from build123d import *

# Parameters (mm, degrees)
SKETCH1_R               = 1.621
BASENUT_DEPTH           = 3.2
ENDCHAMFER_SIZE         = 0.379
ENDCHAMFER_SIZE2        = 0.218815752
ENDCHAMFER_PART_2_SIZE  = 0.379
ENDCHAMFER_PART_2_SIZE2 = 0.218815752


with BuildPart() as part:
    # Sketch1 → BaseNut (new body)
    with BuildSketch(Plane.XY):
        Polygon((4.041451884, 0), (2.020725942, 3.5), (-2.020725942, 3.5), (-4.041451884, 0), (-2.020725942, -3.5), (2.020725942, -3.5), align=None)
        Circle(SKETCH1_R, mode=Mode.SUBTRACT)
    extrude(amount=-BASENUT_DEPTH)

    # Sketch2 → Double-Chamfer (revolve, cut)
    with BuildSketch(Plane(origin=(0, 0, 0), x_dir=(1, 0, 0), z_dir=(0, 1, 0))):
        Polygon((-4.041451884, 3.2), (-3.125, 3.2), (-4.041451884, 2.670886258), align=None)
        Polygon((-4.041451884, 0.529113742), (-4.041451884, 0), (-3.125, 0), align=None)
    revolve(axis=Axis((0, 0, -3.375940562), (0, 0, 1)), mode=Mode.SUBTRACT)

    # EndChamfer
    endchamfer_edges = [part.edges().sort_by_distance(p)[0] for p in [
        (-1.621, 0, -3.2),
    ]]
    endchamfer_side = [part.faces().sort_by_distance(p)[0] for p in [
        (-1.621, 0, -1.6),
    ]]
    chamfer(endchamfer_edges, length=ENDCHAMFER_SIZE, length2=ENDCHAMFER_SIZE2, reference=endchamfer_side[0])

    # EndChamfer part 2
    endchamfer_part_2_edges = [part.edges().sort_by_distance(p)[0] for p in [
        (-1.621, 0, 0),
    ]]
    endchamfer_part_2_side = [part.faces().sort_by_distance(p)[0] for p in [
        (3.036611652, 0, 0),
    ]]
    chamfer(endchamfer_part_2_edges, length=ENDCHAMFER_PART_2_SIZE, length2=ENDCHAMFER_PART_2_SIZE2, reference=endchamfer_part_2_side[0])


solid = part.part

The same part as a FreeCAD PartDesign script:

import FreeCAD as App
import Part
import Sketcher

V = App.Vector
Q = App.Units.Quantity


def edges_at(feature, points):
    """Names of the edges that pass closest to the given points."""
    edges = feature.Shape.Edges
    near = lambda p: min(range(len(edges)), key=lambda i: edges[i].distToShape(Part.Vertex(*p))[0])
    return sorted({f"Edge{near(p) + 1}" for p in points})


def add_polygon(sketch, points):
    """Adds a closed chain of lines whose ends are joined by coincident constraints."""
    first, n = sketch.GeometryCount, len(points)
    for a, b in zip(points, points[1:] + points[:1]):
        sketch.addGeometry(Part.LineSegment(App.Vector(*a, 0), App.Vector(*b, 0)), False)
    for i in range(n):
        sketch.addConstraint(Sketcher.Constraint("Coincident", first + i, 2, first + (i + 1) % n, 1))

doc = App.newDocument("Part")
body = doc.addObject("PartDesign::Body", "Body")

# Sketch on XY plane
sketch1 = doc.addObject("Sketcher::SketchObject", "Sketch")
body.addObject(sketch1)
sketch1.AttachmentSupport = (doc.XY_Plane, [""])
sketch1.MapMode = "FlatFace"
add_polygon(sketch1, [(4, 0), (2, 3.5), (-2, 3.5), (-4, 0), (-2, -3.5), (2, -3.5)])  # lines 0-5
sketch1.addGeometry(Part.Circle(V(0, 0, 0), V(0, 0, 1), 1.6), False)  # 6
sketch1.addConstraint(Sketcher.Constraint("Horizontal", 1))
sketch1.addConstraint(Sketcher.Constraint("Horizontal", 4))
sketch1.addConstraint(Sketcher.Constraint("Coincident", 6, 3, -1, 1))
sketch1.addConstraint(Sketcher.Constraint("Symmetric", 0, 2, 3, 2, -1, 1))
sketch1.addConstraint(Sketcher.Constraint("Symmetric", 2, 2, 5, 2, -1, 1))
sketch1.addConstraint(Sketcher.Constraint("PointOnObject", 2, 2, -1))
sketch1.addConstraint(Sketcher.Constraint("Parallel", 2, 5))
sketch1.addConstraint(Sketcher.Constraint("Vertical", 1, 2, 3, 2))
sketch1.addConstraint(Sketcher.Constraint("Angle", 0, Q("120 deg")))
sketch1.addConstraint(Sketcher.Constraint("Diameter", 6, 3.242))
sketch1.addConstraint(Sketcher.Constraint("DistanceY", 3, 2, 1, 2, 7.0))
sketch1.addConstraint(Sketcher.Constraint("DistanceX", 1, 2, 1, 1, 4.041452))
pad1 = doc.addObject("PartDesign::Pad", "Pad")
body.addObject(pad1)
pad1.Profile = sketch1
pad1.Length = 3.2
pad1.Reversed = True

# Sketch on XZ plane
sketch2 = doc.addObject("Sketcher::SketchObject", "Sketch001")
body.addObject(sketch2)
sketch2.AttachmentSupport = (doc.XZ_Plane, [""])
sketch2.MapMode = "FlatFace"
add_polygon(sketch2, [(-3.1, -3.2), (-4, -3.2), (-4, -2.7)])  # lines 0-2
add_polygon(sketch2, [(-4, -0.5), (-4, 0), (-3.1, 0)])  # lines 3-5
sketch2.addConstraint(Sketcher.Constraint("Horizontal", 0))
sketch2.addConstraint(Sketcher.Constraint("Vertical", 1))
sketch2.addConstraint(Sketcher.Constraint("Vertical", 3))
sketch2.addConstraint(Sketcher.Constraint("Horizontal", 4))
sketch2.addConstraint(Sketcher.Constraint("PointOnObject", 3, 2, -1))
sketch2.addConstraint(Sketcher.Constraint("Vertical", 1, 2, 3, 2))
sketch2.addConstraint(Sketcher.Constraint("Vertical", 2, 2, 4, 2))
sketch2.addConstraint(Sketcher.Constraint("Equal", 1, 3))
sketch2.addConstraint(Sketcher.Constraint("Angle", 2, Q("-30 deg")))
sketch2.addConstraint(Sketcher.Constraint("DistanceY", 0, 2, -1, 1, 3.2))
sketch2.addConstraint(Sketcher.Constraint("DistanceX", 2, 2, -1, 1, 3.125))
sketch2.addConstraint(Sketcher.Constraint("DistanceX", 0, 2, 0, 1, 0.916452))
groove = doc.addObject("PartDesign::Groove", "Groove")
body.addObject(groove)
groove.Profile = sketch2
groove.ReferenceAxis = (sketch2, ["V_Axis"])
groove.Angle = 360
doc.recompute()

chamfer = doc.addObject("PartDesign::Chamfer", "Chamfer")
body.addObject(chamfer)
chamfer.Base = (groove, edges_at(groove, [(-1.621, 0, -3.2)]))
chamfer.ChamferType = "Two distances"
chamfer.Size = 0.379
chamfer.Size2 = 0.218816
chamfer.FlipDirection = True
doc.recompute()

chamfer2 = doc.addObject("PartDesign::Chamfer", "Chamfer001")
body.addObject(chamfer2)
chamfer2.Base = (chamfer, edges_at(chamfer, [(-1.621, 0, 0)]))
chamfer2.ChamferType = "Two distances"
chamfer2.Size = 0.379
chamfer2.Size2 = 0.218816
chamfer2.FlipDirection = True

doc.recompute()
